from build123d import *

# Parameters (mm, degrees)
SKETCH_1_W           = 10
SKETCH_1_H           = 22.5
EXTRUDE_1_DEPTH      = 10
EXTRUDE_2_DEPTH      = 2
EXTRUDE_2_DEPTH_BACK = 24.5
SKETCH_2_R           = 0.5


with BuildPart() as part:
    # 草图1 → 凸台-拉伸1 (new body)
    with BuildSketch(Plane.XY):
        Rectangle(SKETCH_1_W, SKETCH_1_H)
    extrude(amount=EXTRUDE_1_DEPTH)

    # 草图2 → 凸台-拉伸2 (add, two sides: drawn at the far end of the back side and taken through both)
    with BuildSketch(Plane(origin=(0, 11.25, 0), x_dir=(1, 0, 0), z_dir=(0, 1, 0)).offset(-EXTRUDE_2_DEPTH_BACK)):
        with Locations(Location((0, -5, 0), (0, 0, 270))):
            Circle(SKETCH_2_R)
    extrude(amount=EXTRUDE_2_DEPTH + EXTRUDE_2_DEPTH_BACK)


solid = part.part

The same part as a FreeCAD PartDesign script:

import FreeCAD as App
import Part
import Sketcher

doc = App.newDocument("Part")
body = doc.addObject("PartDesign::Body", "Body")

# Sketch on XY plane
sketch1 = body.newObject("Sketcher::SketchObject", "Sketch")
sketch1.AttachmentSupport = (doc.getObject("XY_Plane"), [""])
sketch1.MapMode = "FlatFace"
sketch1.addGeometry(Part.LineSegment(App.Vector(-5, 11.25, 0), App.Vector(-5, -11.25, 0)), False)
sketch1.addGeometry(Part.LineSegment(App.Vector(-5, -11.25, 0), App.Vector(5, -11.25, 0)), False)
sketch1.addGeometry(Part.LineSegment(App.Vector(5, -11.25, 0), App.Vector(5, 11.25, 0)), False)
sketch1.addGeometry(Part.LineSegment(App.Vector(5, 11.25, 0), App.Vector(-5, 11.25, 0)), False)
sketch1.addConstraint(Sketcher.Constraint("Coincident", 0, 2, 1, 1))
sketch1.addConstraint(Sketcher.Constraint("Coincident", 1, 2, 2, 1))
sketch1.addConstraint(Sketcher.Constraint("Coincident", 2, 2, 3, 1))
sketch1.addConstraint(Sketcher.Constraint("Coincident", 3, 2, 0, 1))
sketch1.addConstraint(Sketcher.Constraint("Vertical", 0))
sketch1.addConstraint(Sketcher.Constraint("Horizontal", 1))
sketch1.addConstraint(Sketcher.Constraint("Vertical", 2))
sketch1.addConstraint(Sketcher.Constraint("Horizontal", 3))
sketch1.addConstraint(Sketcher.Constraint("Symmetric", 0, 2, 2, 2, -1, 1))
sketch1.addConstraint(Sketcher.Constraint("DistanceX", 1, 1, 1, 2, 10.0))
sketch1.addConstraint(Sketcher.Constraint("DistanceY", 0, 2, 0, 1, 22.5))
pad1 = body.newObject("PartDesign::Pad", "Pad")
pad1.Profile = sketch1
pad1.Length = 10

# Sketch on XZ plane
sketch2 = body.newObject("Sketcher::SketchObject", "Sketch001")
sketch2.AttachmentSupport = (doc.getObject("XZ_Plane"), [""])
sketch2.MapMode = "FlatFace"
sketch2.AttachmentOffset = App.Placement(App.Vector(0, 0, -11.25), App.Rotation())
sketch2.addGeometry(Part.Circle(App.Vector(0, 5, 0), App.Vector(0, 0, 1), 0.5), False)
sketch2.addConstraint(Sketcher.Constraint("PointOnObject", 0, 3, -2))
sketch2.addConstraint(Sketcher.Constraint("Diameter", 0, 1.0))
sketch2.addConstraint(Sketcher.Constraint("DistanceY", -1, 1, 0, 3, 5.0))
pad2 = body.newObject("PartDesign::Pad", "Pad001")
pad2.Profile = sketch2
pad2.Type = "TwoLengths"
pad2.Length = 2
pad2.Length2 = 24.5
pad2.Reversed = True

doc.recompute()
